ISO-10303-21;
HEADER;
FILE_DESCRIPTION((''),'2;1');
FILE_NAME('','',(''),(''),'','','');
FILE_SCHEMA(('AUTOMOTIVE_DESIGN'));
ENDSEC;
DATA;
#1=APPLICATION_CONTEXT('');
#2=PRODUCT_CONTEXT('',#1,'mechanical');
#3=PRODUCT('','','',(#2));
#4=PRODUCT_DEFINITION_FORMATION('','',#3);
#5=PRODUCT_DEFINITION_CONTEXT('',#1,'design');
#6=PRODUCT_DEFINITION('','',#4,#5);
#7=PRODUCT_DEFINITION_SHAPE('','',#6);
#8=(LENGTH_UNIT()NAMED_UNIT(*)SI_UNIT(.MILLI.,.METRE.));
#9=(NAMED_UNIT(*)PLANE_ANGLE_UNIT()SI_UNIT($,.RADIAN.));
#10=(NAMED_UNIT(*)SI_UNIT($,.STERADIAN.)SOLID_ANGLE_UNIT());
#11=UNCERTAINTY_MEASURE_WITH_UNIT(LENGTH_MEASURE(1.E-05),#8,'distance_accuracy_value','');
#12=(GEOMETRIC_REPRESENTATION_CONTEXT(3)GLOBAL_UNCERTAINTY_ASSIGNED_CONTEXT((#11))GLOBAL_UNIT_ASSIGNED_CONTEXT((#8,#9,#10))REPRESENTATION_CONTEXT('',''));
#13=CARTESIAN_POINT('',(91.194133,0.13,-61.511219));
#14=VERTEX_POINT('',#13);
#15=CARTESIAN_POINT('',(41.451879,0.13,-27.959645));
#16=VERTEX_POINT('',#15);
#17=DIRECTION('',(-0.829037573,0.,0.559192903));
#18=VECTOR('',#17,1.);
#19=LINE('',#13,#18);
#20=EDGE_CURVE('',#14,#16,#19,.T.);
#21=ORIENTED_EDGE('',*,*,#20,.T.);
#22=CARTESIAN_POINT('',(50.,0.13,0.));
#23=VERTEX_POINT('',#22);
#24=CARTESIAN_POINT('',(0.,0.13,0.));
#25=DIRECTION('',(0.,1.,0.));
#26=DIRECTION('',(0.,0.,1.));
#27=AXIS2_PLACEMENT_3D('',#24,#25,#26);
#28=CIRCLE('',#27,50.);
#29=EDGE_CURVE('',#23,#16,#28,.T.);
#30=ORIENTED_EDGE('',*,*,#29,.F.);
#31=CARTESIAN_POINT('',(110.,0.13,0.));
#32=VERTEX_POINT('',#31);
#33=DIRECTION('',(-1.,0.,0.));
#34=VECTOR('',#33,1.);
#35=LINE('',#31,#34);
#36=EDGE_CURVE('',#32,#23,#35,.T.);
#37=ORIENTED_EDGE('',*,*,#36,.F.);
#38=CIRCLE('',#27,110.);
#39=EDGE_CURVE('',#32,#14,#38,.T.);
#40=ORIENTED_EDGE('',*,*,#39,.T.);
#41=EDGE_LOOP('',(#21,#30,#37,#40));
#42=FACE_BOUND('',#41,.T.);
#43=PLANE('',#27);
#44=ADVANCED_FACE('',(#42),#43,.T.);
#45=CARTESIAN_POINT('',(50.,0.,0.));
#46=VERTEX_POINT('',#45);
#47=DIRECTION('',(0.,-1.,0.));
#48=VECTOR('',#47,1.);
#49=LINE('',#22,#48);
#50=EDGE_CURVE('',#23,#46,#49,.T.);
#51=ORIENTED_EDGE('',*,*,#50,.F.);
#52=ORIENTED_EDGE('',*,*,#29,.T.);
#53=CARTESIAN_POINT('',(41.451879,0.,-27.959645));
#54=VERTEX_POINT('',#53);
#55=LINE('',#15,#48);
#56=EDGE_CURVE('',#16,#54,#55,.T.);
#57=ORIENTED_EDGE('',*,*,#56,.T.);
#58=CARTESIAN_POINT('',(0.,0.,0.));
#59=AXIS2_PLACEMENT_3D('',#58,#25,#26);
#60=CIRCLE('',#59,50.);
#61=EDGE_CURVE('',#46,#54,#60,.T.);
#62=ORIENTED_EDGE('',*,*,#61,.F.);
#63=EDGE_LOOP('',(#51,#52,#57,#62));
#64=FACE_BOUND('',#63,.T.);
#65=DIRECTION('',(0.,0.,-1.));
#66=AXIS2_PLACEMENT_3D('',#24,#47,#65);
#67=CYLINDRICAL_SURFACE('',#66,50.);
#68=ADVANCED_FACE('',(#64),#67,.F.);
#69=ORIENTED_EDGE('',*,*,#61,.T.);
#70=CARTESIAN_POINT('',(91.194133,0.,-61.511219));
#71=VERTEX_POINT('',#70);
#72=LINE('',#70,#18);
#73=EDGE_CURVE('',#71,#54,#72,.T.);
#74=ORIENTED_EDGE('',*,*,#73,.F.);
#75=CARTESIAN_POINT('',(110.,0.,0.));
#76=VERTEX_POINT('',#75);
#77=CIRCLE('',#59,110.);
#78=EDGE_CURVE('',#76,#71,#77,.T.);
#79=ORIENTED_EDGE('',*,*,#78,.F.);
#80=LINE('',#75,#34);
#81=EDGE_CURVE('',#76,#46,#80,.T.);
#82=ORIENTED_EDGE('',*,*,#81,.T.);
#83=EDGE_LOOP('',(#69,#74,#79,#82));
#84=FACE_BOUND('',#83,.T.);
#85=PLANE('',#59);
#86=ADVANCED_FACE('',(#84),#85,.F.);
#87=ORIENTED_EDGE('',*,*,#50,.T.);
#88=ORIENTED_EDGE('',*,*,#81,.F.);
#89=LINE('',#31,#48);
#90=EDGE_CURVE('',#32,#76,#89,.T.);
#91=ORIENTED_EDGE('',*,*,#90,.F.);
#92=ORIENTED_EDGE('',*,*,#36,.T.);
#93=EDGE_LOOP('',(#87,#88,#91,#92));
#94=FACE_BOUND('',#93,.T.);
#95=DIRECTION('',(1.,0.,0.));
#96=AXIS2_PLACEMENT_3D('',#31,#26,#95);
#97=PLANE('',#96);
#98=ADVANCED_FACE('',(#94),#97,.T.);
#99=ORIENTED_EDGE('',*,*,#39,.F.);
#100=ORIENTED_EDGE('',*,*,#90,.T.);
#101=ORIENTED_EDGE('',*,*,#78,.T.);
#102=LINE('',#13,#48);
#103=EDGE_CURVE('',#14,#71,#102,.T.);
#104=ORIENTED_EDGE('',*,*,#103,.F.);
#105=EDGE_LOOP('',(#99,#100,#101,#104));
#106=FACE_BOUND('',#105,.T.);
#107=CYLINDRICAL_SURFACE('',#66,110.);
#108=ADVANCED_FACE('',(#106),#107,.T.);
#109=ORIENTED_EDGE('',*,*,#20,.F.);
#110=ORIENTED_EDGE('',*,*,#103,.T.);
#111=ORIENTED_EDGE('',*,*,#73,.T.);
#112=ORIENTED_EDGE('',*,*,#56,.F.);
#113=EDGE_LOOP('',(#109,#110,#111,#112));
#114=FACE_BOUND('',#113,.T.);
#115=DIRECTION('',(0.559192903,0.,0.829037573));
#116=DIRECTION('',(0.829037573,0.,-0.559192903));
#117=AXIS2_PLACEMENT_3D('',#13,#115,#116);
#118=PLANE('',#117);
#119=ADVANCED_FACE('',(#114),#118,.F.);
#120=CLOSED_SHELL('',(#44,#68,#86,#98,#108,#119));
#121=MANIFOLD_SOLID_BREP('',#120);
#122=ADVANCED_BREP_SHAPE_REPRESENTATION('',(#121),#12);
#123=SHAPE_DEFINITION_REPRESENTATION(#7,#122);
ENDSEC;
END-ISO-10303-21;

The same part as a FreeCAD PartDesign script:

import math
import FreeCAD as App
import Part
import Sketcher

V = App.Vector
Q = App.Units.Quantity

doc = App.newDocument("Part")
body = doc.addObject("PartDesign::Body", "Body")

sketch1 = body.newObject("Sketcher::SketchObject", "Sketch")
sketch1.AttachmentSupport = (doc.getObject("XZ_Plane"), [""])
sketch1.MapMode = "FlatFace"
sketch1.addGeometry(Part.LineSegment(V(91, -62, 0), V(41, -28, 0)), False)
sketch1.addGeometry(Part.ArcOfCircle(Part.Circle(V(0, 0, 0), V(0, 0, 1), 50), math.radians(-34), math.radians(0)), False)
sketch1.addGeometry(Part.LineSegment(V(50, 0, 0), V(110, 0, 0)), False)
sketch1.addGeometry(Part.ArcOfCircle(Part.Circle(V(0, 0, 0), V(0, 0, 1), 110), math.radians(-34), math.radians(0)), False)
sketch1.addConstraint(Sketcher.Constraint("Coincident", 0, 2, 1, 1))
sketch1.addConstraint(Sketcher.Constraint("Coincident", 1, 2, 2, 1))
sketch1.addConstraint(Sketcher.Constraint("Coincident", 2, 2, 3, 2))
sketch1.addConstraint(Sketcher.Constraint("Coincident", 3, 1, 0, 1))
sketch1.addConstraint(Sketcher.Constraint("Horizontal", 2))
sketch1.addConstraint(Sketcher.Constraint("Coincident", 1, 3, -1, 1))
sketch1.addConstraint(Sketcher.Constraint("Coincident", 3, 3, -1, 1))
sketch1.addConstraint(Sketcher.Constraint("PointOnObject", 1, 2, -1))
sketch1.addConstraint(Sketcher.Constraint("Radius", 1, Q("50 mm")))
sketch1.addConstraint(Sketcher.Constraint("Radius", 3, Q("110 mm")))
sketch1.addConstraint(Sketcher.Constraint("Angle", 0, Q("146 deg")))
sketch1.addConstraint(Sketcher.Constraint("DistanceX", -1, 1, 0, 2, Q("41.451879 mm")))
pad1 = body.newObject("PartDesign::Pad", "Pad")
pad1.Profile = sketch1
pad1.Length = 0.13
pad1.Reversed = True

doc.recompute()
